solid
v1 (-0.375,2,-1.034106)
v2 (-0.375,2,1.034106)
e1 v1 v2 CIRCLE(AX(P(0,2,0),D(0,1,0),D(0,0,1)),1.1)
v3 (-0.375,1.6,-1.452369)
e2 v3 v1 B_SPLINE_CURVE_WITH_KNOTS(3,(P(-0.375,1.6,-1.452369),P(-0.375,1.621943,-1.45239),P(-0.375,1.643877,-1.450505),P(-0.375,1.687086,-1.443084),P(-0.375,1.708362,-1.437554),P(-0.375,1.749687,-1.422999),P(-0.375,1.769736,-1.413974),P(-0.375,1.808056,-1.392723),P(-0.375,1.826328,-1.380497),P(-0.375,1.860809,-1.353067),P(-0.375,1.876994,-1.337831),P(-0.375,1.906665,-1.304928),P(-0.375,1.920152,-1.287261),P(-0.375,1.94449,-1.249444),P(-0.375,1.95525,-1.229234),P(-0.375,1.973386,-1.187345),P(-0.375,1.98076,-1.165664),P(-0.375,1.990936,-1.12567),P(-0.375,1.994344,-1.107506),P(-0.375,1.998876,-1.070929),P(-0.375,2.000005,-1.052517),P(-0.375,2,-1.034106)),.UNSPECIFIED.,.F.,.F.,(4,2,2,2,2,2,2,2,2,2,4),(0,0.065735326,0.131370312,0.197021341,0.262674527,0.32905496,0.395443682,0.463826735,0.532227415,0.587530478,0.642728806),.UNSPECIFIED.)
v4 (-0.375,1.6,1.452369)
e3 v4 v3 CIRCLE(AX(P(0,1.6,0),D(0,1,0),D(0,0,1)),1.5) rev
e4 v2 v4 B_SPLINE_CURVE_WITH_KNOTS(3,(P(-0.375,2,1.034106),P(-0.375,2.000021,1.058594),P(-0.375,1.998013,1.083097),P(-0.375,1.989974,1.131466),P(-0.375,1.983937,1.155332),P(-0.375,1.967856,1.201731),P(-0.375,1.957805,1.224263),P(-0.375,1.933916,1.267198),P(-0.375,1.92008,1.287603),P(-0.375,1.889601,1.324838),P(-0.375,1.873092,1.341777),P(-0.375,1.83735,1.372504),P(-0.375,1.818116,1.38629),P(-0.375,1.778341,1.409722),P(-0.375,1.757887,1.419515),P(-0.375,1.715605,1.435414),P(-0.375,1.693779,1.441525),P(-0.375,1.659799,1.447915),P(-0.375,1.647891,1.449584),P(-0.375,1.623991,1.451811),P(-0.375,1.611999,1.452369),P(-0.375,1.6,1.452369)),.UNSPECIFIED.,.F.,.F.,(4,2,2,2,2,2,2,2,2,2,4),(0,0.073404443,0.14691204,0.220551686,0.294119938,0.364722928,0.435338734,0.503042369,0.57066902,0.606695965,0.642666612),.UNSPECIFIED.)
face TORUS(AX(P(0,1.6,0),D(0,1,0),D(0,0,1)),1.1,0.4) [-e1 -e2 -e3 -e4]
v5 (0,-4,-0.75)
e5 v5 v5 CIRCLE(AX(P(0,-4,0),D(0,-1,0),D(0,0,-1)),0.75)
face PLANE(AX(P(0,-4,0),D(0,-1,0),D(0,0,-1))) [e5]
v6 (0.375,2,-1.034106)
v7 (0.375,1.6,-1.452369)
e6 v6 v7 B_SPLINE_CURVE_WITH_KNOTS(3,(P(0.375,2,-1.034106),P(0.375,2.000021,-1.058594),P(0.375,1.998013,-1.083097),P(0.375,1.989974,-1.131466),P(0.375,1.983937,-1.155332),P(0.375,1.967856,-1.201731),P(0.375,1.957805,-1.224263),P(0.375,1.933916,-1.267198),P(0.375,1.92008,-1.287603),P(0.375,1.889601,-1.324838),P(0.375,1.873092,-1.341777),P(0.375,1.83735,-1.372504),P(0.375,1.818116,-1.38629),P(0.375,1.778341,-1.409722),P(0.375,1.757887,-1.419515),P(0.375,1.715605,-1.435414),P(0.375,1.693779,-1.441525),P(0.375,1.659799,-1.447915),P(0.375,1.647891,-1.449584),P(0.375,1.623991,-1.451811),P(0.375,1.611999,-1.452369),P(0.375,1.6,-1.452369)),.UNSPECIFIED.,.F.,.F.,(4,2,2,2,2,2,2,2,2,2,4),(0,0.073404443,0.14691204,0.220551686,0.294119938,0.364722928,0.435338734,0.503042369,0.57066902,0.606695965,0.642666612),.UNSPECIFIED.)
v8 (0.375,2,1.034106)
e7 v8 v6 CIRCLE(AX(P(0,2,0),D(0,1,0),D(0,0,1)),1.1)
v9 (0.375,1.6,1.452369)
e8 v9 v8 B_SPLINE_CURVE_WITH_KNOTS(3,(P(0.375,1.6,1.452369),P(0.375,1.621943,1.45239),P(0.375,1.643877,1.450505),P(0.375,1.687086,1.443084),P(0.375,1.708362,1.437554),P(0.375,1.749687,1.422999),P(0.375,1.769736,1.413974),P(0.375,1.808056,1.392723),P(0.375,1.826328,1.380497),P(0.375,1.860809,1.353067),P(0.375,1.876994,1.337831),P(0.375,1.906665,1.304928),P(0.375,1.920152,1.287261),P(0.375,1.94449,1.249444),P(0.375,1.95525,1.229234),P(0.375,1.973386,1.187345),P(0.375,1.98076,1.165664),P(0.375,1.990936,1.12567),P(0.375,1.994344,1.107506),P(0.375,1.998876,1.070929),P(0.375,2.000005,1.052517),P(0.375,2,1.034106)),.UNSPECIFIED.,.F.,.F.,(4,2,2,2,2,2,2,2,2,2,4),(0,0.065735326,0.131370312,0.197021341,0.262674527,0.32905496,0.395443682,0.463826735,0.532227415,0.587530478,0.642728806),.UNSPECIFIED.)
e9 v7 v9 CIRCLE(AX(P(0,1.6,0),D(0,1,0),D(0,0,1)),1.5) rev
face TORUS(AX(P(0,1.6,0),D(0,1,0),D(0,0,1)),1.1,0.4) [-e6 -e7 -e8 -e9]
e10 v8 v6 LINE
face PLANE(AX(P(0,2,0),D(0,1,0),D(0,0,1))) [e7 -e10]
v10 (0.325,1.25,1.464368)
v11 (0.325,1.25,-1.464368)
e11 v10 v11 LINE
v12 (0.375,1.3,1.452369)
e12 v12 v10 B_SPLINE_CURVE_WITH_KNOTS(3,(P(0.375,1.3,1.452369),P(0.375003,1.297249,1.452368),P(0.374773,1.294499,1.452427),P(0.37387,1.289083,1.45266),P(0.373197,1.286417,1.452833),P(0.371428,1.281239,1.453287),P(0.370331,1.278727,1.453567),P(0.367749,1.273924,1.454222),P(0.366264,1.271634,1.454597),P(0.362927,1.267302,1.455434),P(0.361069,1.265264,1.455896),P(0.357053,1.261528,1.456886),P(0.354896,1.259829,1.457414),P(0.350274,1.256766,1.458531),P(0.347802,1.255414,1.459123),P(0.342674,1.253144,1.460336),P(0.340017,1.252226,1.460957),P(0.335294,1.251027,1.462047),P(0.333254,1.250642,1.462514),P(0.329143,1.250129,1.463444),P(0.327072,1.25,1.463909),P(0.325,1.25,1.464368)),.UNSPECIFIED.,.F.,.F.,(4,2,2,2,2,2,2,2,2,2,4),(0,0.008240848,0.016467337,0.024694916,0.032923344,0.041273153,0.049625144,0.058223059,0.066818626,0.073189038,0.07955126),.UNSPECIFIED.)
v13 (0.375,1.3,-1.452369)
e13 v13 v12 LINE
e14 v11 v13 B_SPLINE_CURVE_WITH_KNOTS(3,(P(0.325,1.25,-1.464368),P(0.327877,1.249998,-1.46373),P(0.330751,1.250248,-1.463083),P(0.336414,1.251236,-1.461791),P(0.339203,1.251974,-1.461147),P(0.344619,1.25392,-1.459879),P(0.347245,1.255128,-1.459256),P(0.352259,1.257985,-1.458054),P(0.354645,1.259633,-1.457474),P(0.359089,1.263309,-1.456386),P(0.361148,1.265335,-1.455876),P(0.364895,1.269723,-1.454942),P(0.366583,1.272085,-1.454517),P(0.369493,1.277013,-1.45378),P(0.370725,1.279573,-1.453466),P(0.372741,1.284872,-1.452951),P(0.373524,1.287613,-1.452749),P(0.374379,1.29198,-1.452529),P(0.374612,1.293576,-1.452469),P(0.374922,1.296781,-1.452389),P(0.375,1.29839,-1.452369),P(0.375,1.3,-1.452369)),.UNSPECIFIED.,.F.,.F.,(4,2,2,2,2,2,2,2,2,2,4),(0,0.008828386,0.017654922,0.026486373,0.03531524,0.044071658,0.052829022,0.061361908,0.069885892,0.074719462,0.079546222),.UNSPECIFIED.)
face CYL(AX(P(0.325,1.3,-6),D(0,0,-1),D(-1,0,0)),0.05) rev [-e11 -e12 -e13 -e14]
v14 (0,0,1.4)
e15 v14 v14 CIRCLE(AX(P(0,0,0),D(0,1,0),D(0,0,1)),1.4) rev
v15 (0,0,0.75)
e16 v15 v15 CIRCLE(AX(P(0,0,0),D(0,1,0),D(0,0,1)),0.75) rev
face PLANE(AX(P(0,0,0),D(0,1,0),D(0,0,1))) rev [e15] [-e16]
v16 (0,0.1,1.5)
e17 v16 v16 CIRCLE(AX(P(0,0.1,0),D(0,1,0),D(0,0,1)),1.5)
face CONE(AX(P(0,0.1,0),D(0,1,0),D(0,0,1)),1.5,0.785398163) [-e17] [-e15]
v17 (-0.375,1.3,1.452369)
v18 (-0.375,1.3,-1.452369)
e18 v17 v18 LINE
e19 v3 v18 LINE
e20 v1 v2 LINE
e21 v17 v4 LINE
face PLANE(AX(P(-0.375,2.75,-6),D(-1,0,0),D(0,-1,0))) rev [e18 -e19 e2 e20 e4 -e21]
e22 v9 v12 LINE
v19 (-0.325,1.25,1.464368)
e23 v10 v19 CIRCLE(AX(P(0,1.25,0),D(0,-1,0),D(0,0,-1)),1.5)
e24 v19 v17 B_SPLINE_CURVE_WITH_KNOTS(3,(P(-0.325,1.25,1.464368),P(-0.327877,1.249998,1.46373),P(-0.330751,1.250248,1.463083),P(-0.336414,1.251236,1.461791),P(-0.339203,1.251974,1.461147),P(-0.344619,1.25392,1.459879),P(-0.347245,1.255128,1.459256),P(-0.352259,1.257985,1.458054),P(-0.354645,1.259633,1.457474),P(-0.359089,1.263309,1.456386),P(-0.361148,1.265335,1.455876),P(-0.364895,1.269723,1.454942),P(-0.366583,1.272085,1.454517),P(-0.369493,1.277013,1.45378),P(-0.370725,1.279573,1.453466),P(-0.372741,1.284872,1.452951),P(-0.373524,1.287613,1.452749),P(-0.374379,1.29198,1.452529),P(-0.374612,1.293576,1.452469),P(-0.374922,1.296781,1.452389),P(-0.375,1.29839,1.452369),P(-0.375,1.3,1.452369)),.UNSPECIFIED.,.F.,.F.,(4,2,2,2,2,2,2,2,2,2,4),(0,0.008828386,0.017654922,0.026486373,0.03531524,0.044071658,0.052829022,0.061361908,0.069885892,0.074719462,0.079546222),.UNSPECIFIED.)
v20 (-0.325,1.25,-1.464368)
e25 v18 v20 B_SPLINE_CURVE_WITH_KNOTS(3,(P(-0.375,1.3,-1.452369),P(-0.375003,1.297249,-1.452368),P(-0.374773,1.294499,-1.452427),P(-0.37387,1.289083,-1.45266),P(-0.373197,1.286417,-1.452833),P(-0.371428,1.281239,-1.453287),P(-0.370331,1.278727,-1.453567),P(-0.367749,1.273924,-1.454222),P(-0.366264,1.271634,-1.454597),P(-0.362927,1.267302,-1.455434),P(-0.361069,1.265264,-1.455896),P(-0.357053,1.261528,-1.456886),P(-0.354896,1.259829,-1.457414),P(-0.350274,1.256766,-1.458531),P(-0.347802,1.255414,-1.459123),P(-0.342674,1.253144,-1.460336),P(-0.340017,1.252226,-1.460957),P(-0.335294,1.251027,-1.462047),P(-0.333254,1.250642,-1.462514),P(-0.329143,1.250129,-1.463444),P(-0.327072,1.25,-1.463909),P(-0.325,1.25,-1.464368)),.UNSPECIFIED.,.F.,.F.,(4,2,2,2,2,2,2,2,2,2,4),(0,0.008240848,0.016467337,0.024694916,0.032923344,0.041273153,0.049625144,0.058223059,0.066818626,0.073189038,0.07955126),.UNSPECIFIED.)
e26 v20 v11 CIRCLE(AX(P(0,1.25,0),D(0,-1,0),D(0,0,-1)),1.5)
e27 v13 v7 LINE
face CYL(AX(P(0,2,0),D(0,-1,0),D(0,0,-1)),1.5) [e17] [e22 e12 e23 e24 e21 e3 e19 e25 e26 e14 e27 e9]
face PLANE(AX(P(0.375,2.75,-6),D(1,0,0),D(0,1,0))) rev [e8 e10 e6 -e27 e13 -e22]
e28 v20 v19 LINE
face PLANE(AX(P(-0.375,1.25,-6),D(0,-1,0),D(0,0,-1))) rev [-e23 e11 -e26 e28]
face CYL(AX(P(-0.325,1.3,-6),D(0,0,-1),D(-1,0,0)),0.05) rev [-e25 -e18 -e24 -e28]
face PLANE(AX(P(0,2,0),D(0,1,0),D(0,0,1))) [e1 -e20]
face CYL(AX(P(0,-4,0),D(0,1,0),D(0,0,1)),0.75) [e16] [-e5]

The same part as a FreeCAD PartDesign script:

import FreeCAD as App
import Part
import Sketcher

V = App.Vector
Q = App.Units.Quantity


def edges_at(feature, points):
    """Names of the edges that pass closest to the given points."""
    edges = feature.Shape.Edges
    near = lambda p: min(range(len(edges)), key=lambda i: edges[i].distToShape(Part.Vertex(*p))[0])
    return sorted({f"Edge{near(p) + 1}" for p in points})


def add_polygon(sketch, points):
    """Adds a closed chain of lines whose ends are joined by coincident constraints."""
    first, n = sketch.GeometryCount, len(points)
    for a, b in zip(points, points[1:] + points[:1]):
        sketch.addGeometry(Part.LineSegment(App.Vector(*a, 0), App.Vector(*b, 0)), False)
    for i in range(n):
        sketch.addConstraint(Sketcher.Constraint("Coincident", first + i, 2, first + (i + 1) % n, 1))

doc = App.newDocument("Part")
body = doc.addObject("PartDesign::Body", "Body")

# Sketch on XZ plane
sketch1 = body.newObject("Sketcher::SketchObject", "Sketch")
sketch1.AttachmentSupport = (doc.getObject("XZ_Plane"), [""])
sketch1.MapMode = "FlatFace"
sketch1.addGeometry(Part.Circle(V(0, 0, 0), V(0, 0, 1), 1.5), False)
sketch1.addConstraint([
    Sketcher.Constraint("Coincident", 0, 3, -1, 1),
    Sketcher.Constraint("Diameter", 0, Q("3 mm")),
])
pad1 = body.newObject("PartDesign::Pad", "Pad")
pad1.Profile = sketch1
pad1.Length = 2
pad1.Reversed = True

# Sketch on XY plane
sketch2 = body.newObject("Sketcher::SketchObject", "Sketch001")
sketch2.AttachmentSupport = (doc.getObject("XY_Plane"), [""])
sketch2.MapMode = "FlatFace"
add_polygon(sketch2, [(-0.4, 2.8), (-0.4, 1.2), (0.4, 1.2), (0.4, 2.8)])  # lines 0-3
sketch2.addConstraint([
    Sketcher.Constraint("Vertical", 0),
    Sketcher.Constraint("Horizontal", 1),
    Sketcher.Constraint("Vertical", 2),
    Sketcher.Constraint("Horizontal", 3),
    Sketcher.Constraint("DistanceY", 0, 2, 0, 1, Q("1.5 mm")),
    Sketcher.Constraint("DistanceX", 1, 1, 1, 2, Q("0.75 mm")),
    Sketcher.Constraint("DistanceY", -1, 1, 0, 2, Q("1.25 mm")),
    Sketcher.Constraint("DistanceX", 0, 2, -1, 1, Q("0.375 mm")),
])
pocket1 = body.newObject("PartDesign::Pocket", "Pocket")
pocket1.Profile = sketch2
pocket1.Length = 12
pocket1.Midplane = True

# Sketch on XZ plane
sketch3 = body.newObject("Sketcher::SketchObject", "Sketch002")
sketch3.AttachmentSupport = (doc.getObject("XZ_Plane"), [""])
sketch3.MapMode = "FlatFace"
sketch3.addGeometry(Part.Circle(V(0, 0, 0), V(0, 0, 1), 0.8), False)
sketch3.addConstraint([
    Sketcher.Constraint("Coincident", 0, 3, -1, 1),
    Sketcher.Constraint("Diameter", 0, Q("1.5 mm")),
])
pad2 = body.newObject("PartDesign::Pad", "Pad001")
pad2.Profile = sketch3
pad2.Length = 4
doc.recompute()

fillet = body.newObject("PartDesign::Fillet", "Fillet")
fillet.Base = (pad2, edges_at(pad2, [(-0.375, 1.25, 0), (0.375, 1.25, 0)]))
fillet.Radius = 0.05
doc.recompute()

chamfer = body.newObject("PartDesign::Chamfer", "Chamfer")
chamfer.Base = (fillet, edges_at(fillet, [(-1.5, 0, 0)]))
chamfer.Size = 0.1
doc.recompute()

fillet2 = body.newObject("PartDesign::Fillet", "Fillet001")
fillet2.Base = (chamfer, edges_at(chamfer, [(1.186, 2, 0.919), (-1.5, 2, 0)]))
fillet2.Radius = 0.4

doc.recompute()
